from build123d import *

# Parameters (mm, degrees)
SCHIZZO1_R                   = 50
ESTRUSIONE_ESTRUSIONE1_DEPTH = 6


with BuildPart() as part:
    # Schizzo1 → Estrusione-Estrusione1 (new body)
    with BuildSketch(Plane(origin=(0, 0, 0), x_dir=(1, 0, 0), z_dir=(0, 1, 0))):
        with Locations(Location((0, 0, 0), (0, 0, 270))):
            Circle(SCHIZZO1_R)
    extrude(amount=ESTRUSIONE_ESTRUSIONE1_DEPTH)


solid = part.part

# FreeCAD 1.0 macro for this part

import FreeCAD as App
import Part
import Sketcher
from FreeCAD import Vector

doc = App.newDocument("Part")
body = doc.addObject("PartDesign::Body", "Body")

# Sketch on XZ plane
sketch1 = body.newObject("Sketcher::SketchObject", "Sketch")
sketch1.AttachmentSupport = (doc.getObject("XZ_Plane"), [""])
sketch1.MapMode = "FlatFace"
sketch1.addGeometry(Part.Circle(Vector(0, 0, 0), Vector(0, 0, 1), 50), False)
sketch1.addConstraint([
    Sketcher.Constraint("Coincident", 0, 3, -1, 1),
    Sketcher.Constraint("Diameter", 0, 100.0),
])
pad1 = body.newObject("PartDesign::Pad", "Pad")
pad1.Profile = sketch1
pad1.Length = 6
pad1.Reversed = True

doc.recompute()
